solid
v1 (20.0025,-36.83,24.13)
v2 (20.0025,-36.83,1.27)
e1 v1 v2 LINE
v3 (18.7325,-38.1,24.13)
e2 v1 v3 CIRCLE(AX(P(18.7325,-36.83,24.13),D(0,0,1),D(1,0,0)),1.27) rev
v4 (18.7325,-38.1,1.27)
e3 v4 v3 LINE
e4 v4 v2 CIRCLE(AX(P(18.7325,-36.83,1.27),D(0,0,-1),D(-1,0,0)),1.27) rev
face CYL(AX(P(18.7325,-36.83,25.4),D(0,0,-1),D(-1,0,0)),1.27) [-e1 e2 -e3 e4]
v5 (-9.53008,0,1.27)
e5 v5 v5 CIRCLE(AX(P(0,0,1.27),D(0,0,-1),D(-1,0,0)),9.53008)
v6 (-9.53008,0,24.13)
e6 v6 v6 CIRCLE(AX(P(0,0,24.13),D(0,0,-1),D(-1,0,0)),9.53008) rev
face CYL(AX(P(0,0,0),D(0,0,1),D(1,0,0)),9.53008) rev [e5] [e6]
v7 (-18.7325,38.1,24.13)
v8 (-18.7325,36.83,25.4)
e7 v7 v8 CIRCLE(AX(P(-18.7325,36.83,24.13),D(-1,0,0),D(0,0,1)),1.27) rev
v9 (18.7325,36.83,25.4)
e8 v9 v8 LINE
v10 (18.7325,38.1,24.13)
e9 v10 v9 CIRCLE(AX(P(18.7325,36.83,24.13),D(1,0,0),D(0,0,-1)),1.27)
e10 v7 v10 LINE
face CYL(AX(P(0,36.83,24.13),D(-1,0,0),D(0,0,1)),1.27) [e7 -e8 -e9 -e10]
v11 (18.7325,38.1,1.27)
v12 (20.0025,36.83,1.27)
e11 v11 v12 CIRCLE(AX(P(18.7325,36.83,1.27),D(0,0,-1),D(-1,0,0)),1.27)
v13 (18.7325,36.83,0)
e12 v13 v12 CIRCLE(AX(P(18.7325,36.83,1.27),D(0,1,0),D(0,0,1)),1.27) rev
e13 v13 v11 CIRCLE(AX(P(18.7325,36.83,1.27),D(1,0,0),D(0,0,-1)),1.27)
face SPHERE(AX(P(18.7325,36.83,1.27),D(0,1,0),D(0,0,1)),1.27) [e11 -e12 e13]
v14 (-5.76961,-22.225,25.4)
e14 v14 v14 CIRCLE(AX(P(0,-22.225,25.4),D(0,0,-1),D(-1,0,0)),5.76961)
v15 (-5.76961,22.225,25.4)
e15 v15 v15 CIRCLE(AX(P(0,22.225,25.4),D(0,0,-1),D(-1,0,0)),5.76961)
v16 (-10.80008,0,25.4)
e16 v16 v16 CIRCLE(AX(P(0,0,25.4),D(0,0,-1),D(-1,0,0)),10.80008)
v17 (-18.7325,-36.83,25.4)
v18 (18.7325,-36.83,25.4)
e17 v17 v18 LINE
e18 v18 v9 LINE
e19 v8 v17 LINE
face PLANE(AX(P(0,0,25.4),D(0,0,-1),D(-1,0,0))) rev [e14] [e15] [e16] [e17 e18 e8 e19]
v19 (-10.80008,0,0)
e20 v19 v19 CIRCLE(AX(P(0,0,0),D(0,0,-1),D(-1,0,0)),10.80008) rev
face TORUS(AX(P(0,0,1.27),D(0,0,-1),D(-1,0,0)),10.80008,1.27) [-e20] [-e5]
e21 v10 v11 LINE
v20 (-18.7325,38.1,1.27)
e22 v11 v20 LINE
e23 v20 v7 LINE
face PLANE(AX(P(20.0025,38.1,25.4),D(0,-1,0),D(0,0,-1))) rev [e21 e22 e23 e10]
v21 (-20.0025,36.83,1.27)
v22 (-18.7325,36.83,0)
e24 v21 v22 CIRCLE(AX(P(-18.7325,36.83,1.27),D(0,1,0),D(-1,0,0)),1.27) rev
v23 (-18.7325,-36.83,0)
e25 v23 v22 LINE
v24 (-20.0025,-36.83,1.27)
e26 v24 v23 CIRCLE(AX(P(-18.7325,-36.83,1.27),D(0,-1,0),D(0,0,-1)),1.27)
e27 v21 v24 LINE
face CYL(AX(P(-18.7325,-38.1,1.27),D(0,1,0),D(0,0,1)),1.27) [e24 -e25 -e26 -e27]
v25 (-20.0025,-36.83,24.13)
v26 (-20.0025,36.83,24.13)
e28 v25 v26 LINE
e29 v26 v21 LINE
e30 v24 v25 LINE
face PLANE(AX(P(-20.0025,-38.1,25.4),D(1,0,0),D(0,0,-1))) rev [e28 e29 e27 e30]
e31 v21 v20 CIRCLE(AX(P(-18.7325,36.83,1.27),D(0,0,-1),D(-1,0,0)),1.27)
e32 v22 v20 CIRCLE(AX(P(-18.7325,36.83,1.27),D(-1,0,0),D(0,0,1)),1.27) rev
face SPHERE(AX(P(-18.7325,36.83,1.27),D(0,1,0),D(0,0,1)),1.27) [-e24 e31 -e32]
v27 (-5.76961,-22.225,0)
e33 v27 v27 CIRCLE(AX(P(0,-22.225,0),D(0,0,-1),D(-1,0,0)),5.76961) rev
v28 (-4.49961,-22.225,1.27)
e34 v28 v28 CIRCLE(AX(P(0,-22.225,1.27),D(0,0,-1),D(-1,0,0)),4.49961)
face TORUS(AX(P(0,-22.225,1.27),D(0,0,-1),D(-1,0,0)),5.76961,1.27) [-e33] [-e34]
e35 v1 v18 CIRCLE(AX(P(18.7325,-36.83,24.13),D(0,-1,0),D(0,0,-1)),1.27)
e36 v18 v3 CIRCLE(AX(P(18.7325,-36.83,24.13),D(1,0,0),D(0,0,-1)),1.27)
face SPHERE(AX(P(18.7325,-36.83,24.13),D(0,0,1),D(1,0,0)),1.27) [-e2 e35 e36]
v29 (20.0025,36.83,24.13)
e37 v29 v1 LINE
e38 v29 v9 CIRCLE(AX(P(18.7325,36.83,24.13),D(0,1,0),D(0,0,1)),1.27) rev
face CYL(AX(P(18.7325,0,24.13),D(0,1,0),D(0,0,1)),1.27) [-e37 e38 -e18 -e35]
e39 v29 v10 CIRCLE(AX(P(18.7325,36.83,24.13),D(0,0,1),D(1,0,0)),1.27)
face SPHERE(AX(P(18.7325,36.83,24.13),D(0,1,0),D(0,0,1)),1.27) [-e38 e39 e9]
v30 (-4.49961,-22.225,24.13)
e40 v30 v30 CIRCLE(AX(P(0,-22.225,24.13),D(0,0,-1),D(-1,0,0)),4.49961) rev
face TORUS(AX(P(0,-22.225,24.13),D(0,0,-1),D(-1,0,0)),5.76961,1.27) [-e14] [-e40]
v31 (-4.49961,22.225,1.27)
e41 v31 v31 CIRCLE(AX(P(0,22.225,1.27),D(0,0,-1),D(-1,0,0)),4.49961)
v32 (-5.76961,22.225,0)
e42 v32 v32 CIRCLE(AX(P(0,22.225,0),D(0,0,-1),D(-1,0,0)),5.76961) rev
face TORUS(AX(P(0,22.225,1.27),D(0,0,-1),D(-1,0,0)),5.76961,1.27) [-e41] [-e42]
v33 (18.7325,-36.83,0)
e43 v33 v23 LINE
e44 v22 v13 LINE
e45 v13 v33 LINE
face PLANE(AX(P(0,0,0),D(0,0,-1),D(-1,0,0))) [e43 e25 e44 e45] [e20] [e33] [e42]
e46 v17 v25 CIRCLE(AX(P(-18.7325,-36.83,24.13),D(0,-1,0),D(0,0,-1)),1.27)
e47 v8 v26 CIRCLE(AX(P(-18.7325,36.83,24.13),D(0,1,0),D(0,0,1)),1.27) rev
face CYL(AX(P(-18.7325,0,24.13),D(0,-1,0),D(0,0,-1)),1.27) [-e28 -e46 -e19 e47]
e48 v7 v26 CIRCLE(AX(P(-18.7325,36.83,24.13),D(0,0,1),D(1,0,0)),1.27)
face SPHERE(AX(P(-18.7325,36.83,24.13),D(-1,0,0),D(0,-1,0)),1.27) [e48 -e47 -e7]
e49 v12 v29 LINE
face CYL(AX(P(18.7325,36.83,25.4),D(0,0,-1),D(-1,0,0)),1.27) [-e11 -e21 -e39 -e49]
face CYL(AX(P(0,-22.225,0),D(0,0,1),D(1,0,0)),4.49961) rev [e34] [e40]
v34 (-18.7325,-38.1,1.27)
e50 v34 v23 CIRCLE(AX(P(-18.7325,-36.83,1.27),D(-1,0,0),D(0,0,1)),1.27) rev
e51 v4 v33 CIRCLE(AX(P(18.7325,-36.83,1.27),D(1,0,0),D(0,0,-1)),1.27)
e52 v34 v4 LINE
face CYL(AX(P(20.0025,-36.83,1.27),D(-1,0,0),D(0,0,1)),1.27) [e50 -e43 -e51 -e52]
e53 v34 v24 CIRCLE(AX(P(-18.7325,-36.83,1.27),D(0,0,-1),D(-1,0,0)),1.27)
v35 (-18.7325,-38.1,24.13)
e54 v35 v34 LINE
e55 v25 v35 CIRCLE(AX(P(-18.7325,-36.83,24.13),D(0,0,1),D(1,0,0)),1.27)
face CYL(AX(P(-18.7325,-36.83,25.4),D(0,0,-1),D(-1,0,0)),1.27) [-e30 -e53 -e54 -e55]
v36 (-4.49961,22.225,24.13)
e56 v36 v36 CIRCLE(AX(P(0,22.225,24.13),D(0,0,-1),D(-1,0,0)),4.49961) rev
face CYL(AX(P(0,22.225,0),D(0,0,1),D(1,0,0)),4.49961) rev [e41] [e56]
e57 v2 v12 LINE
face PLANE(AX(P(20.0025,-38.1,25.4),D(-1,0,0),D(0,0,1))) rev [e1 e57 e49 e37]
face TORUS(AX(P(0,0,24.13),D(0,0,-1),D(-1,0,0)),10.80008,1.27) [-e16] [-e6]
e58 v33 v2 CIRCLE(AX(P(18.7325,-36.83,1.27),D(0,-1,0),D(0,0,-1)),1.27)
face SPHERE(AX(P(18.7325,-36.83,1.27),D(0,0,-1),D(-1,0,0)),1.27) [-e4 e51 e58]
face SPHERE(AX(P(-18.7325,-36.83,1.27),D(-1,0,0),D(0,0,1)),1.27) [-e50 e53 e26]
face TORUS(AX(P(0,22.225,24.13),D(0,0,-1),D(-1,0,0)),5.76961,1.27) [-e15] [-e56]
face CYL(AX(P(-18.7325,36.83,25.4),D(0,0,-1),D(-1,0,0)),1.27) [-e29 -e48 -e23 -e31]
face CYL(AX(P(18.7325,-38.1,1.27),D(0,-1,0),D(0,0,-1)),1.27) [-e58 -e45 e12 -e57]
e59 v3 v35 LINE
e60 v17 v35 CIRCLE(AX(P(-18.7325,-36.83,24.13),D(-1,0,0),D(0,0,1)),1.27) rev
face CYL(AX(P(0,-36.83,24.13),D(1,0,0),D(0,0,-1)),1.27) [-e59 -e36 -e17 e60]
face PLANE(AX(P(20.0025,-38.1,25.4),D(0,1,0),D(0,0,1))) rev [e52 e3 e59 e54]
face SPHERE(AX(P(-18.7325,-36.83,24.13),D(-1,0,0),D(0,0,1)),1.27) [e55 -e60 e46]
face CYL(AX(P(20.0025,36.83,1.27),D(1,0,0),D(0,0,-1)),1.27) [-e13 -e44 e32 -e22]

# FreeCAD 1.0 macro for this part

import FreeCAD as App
import Part
import Sketcher
from FreeCAD import Vector
Q = App.Units.Quantity

doc = App.newDocument("Part")
body = doc.addObject("PartDesign::Body", "Body")

# Sketch on XY plane
sketch1 = body.newObject("Sketcher::SketchObject", "Sketch")
sketch1.AttachmentSupport = (doc.getObject("XY_Plane"), [""])
sketch1.MapMode = "FlatFace"
sketch1.addGeometry(Part.LineSegment(Vector(-20, -38, 0), Vector(20, -38, 0)), False)
sketch1.addGeometry(Part.LineSegment(Vector(20, -38, 0), Vector(20, 38, 0)), False)
sketch1.addGeometry(Part.LineSegment(Vector(20, 38, 0), Vector(-20, 38, 0)), False)
sketch1.addGeometry(Part.LineSegment(Vector(-20, 38, 0), Vector(-20, -38, 0)), False)
sketch1.addConstraint(Sketcher.Constraint("Coincident", 0, 2, 1, 1))
sketch1.addConstraint(Sketcher.Constraint("Coincident", 1, 2, 2, 1))
sketch1.addConstraint(Sketcher.Constraint("Coincident", 2, 2, 3, 1))
sketch1.addConstraint(Sketcher.Constraint("Coincident", 3, 2, 0, 1))
sketch1.addConstraint(Sketcher.Constraint("Horizontal", 0))
sketch1.addConstraint(Sketcher.Constraint("Vertical", 1))
sketch1.addConstraint(Sketcher.Constraint("Horizontal", 2))
sketch1.addConstraint(Sketcher.Constraint("Vertical", 3))
sketch1.addConstraint(Sketcher.Constraint("Symmetric", 0, 2, 2, 2, -1, 1))
sketch1.addConstraint(Sketcher.Constraint("DistanceY", 1, 1, 1, 2, Q("3 in")))
sketch1.addConstraint(Sketcher.Constraint("DistanceX", 0, 1, 0, 2, Q("1.575 in")))
pad1 = body.newObject("PartDesign::Pad", "Pad")
pad1.Profile = sketch1
pad1.Length = Q("1 in")

# Sketch on XY plane
sketch2 = body.newObject("Sketcher::SketchObject", "Sketch001")
sketch2.AttachmentSupport = (doc.getObject("XY_Plane"), [""])
sketch2.MapMode = "FlatFace"
sketch2.AttachmentOffset = App.Placement(Vector(0, 0, 1 * 25.4), App.Rotation())
sketch2.addGeometry(Part.Circle(Vector(0, 0, 0), Vector(0, 0, 1), 10), False)
sketch2.addConstraint(Sketcher.Constraint("Coincident", 0, 3, -1, 1))
sketch2.addConstraint(Sketcher.Constraint("Diameter", 0, Q("0.7504 in")))
pocket1 = body.newObject("PartDesign::Pocket", "Pocket")
pocket1.Profile = sketch2
pocket1.Type = "ThroughAll"

# Sketch on XY plane
sketch3 = body.newObject("Sketcher::SketchObject", "Sketch002")
sketch3.AttachmentSupport = (doc.getObject("XY_Plane"), [""])
sketch3.MapMode = "FlatFace"
sketch3.AttachmentOffset = App.Placement(Vector(0, 0, 1 * 25.4), App.Rotation())
sketch3.addGeometry(Part.Circle(Vector(0, 22.2, 0), Vector(0, 0, 1), 4.5), False)
sketch3.addGeometry(Part.Circle(Vector(0, -22.2, 0), Vector(0, 0, 1), 4.5), False)
sketch3.addConstraint(Sketcher.Constraint("Equal", 0, 1))
sketch3.addConstraint(Sketcher.Constraint("Symmetric", 0, 3, 1, 3, -1, 1))
sketch3.addConstraint(Sketcher.Constraint("PointOnObject", 0, 3, -2))
sketch3.addConstraint(Sketcher.Constraint("Diameter", 0, Q("0.3543 in")))
sketch3.addConstraint(Sketcher.Constraint("DistanceY", 1, 3, 0, 3, Q("1.75 in")))
pocket2 = body.newObject("PartDesign::Pocket", "Pocket001")
pocket2.Profile = sketch3
pocket2.Type = "ThroughAll"
doc.recompute()

fillet = body.newObject("PartDesign::Fillet", "Fillet")
fillet.Base = (pocket2, ["Edge1"])
fillet.UseAllEdges = True
fillet.Radius = Q("0.05 in")

doc.recompute()
